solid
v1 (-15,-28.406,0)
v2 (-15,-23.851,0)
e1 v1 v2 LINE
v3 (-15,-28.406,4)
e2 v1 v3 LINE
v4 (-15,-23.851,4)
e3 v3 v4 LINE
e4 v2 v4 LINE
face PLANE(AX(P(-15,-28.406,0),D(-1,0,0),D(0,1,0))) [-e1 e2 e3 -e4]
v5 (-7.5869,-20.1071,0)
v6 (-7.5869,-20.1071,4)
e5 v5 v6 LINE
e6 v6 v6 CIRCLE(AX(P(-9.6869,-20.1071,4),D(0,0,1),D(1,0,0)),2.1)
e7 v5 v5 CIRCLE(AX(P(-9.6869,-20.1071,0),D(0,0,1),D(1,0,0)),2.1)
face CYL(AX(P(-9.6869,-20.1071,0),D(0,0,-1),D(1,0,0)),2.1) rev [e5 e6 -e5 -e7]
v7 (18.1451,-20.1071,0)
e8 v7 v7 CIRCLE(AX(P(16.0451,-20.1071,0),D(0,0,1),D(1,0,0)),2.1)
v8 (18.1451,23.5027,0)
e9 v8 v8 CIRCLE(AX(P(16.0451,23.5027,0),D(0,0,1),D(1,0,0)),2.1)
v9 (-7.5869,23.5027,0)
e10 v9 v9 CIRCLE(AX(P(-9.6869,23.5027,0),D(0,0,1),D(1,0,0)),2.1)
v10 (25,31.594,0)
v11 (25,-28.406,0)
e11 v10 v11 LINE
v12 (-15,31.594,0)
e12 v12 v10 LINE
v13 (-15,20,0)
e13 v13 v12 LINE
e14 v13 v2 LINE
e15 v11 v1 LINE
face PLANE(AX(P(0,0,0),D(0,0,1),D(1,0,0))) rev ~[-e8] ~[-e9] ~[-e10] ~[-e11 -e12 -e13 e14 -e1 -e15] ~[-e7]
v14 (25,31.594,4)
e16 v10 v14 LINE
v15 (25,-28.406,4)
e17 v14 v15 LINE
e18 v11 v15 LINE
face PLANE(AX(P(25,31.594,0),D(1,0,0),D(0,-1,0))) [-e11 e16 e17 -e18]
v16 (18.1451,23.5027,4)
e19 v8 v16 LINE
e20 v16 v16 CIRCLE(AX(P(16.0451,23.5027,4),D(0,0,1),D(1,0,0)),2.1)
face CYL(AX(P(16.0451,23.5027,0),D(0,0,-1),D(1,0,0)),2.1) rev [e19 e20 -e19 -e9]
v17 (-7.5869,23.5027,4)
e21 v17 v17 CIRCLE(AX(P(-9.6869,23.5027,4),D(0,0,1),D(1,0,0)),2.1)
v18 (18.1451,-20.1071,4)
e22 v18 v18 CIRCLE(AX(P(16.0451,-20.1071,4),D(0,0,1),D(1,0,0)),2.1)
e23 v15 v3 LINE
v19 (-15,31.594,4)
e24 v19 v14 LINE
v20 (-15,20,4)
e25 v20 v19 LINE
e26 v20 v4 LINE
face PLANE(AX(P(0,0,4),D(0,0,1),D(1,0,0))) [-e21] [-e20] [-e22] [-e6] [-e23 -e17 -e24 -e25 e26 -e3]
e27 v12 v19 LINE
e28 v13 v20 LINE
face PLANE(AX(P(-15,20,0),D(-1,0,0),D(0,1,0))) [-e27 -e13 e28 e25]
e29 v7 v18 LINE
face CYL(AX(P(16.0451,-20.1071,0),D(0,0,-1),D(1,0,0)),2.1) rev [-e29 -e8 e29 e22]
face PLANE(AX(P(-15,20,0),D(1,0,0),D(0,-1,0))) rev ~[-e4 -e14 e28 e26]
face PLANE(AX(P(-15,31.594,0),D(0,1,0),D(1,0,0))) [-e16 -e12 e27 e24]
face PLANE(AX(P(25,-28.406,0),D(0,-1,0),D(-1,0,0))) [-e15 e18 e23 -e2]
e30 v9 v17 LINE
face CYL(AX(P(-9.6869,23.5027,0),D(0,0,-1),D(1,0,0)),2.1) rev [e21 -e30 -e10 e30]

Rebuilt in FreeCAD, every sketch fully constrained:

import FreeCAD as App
import Part
import Sketcher

V = App.Vector

doc = App.newDocument("Part")
body = doc.addObject("PartDesign::Body", "Body")

sketch1 = body.newObject("Sketcher::SketchObject", "Sketch")
sketch1.AttachmentSupport = (doc.getObject("XY_Plane"), [""])
sketch1.MapMode = "FlatFace"
sketch1.addGeometry(Part.LineSegment(V(-15, 31.594, 0), V(-15, -28.406, 0)), False)
sketch1.addGeometry(Part.LineSegment(V(-15, -28.406, 0), V(25, -28.406, 0)), False)
sketch1.addGeometry(Part.LineSegment(V(25, -28.406, 0), V(25, 31.594, 0)), False)
sketch1.addGeometry(Part.LineSegment(V(25, 31.594, 0), V(-15, 31.594, 0)), False)
sketch1.addGeometry(Part.Circle(V(-9.6869, -20.1071, 0), V(0, 0, 1), 2.1), False)
sketch1.addGeometry(Part.Circle(V(16.0451, -20.1071, 0), V(0, 0, 1), 2.1), False)
sketch1.addGeometry(Part.Circle(V(-9.6869, 23.5027, 0), V(0, 0, 1), 2.1), False)
sketch1.addGeometry(Part.Circle(V(16.0451, 23.5027, 0), V(0, 0, 1), 2.1), False)
sketch1.addConstraint(Sketcher.Constraint("Coincident", 0, 2, 1, 1))
sketch1.addConstraint(Sketcher.Constraint("Coincident", 1, 2, 2, 1))
sketch1.addConstraint(Sketcher.Constraint("Coincident", 2, 2, 3, 1))
sketch1.addConstraint(Sketcher.Constraint("Coincident", 3, 2, 0, 1))
sketch1.addConstraint(Sketcher.Constraint("Vertical", 0))
sketch1.addConstraint(Sketcher.Constraint("Horizontal", 1))
sketch1.addConstraint(Sketcher.Constraint("Vertical", 2))
sketch1.addConstraint(Sketcher.Constraint("Horizontal", 3))
sketch1.addConstraint(Sketcher.Constraint("Equal", 4, 5))
sketch1.addConstraint(Sketcher.Constraint("Equal", 5, 6))
sketch1.addConstraint(Sketcher.Constraint("Equal", 6, 7))
sketch1.addConstraint(Sketcher.Constraint("Horizontal", 4, 3, 5, 3))
sketch1.addConstraint(Sketcher.Constraint("Horizontal", 6, 3, 7, 3))
sketch1.addConstraint(Sketcher.Constraint("Vertical", 4, 3, 6, 3))
sketch1.addConstraint(Sketcher.Constraint("Vertical", 5, 3, 7, 3))
sketch1.addConstraint(Sketcher.Constraint("DistanceX", 1, 1, 1, 2, 40.0))
sketch1.addConstraint(Sketcher.Constraint("DistanceY", 0, 2, 0, 1, 60.0))
sketch1.addConstraint(Sketcher.Constraint("Diameter", 4, 4.2))
sketch1.addConstraint(Sketcher.Constraint("DistanceX", 0, 2, -1, 1, 15.0))
sketch1.addConstraint(Sketcher.Constraint("DistanceX", 4, 3, -1, 1, 9.687))
sketch1.addConstraint(Sketcher.Constraint("DistanceY", 4, 3, -1, 1, 20.107))
sketch1.addConstraint(Sketcher.Constraint("DistanceX", -1, 1, 5, 3, 16.045))
sketch1.addConstraint(Sketcher.Constraint("DistanceY", 0, 2, -1, 1, 28.406))
sketch1.addConstraint(Sketcher.Constraint("DistanceY", -1, 1, 6, 3, 23.5027))
pad1 = body.newObject("PartDesign::Pad", "Pad")
pad1.Profile = sketch1
pad1.Length = 4

doc.recompute()
